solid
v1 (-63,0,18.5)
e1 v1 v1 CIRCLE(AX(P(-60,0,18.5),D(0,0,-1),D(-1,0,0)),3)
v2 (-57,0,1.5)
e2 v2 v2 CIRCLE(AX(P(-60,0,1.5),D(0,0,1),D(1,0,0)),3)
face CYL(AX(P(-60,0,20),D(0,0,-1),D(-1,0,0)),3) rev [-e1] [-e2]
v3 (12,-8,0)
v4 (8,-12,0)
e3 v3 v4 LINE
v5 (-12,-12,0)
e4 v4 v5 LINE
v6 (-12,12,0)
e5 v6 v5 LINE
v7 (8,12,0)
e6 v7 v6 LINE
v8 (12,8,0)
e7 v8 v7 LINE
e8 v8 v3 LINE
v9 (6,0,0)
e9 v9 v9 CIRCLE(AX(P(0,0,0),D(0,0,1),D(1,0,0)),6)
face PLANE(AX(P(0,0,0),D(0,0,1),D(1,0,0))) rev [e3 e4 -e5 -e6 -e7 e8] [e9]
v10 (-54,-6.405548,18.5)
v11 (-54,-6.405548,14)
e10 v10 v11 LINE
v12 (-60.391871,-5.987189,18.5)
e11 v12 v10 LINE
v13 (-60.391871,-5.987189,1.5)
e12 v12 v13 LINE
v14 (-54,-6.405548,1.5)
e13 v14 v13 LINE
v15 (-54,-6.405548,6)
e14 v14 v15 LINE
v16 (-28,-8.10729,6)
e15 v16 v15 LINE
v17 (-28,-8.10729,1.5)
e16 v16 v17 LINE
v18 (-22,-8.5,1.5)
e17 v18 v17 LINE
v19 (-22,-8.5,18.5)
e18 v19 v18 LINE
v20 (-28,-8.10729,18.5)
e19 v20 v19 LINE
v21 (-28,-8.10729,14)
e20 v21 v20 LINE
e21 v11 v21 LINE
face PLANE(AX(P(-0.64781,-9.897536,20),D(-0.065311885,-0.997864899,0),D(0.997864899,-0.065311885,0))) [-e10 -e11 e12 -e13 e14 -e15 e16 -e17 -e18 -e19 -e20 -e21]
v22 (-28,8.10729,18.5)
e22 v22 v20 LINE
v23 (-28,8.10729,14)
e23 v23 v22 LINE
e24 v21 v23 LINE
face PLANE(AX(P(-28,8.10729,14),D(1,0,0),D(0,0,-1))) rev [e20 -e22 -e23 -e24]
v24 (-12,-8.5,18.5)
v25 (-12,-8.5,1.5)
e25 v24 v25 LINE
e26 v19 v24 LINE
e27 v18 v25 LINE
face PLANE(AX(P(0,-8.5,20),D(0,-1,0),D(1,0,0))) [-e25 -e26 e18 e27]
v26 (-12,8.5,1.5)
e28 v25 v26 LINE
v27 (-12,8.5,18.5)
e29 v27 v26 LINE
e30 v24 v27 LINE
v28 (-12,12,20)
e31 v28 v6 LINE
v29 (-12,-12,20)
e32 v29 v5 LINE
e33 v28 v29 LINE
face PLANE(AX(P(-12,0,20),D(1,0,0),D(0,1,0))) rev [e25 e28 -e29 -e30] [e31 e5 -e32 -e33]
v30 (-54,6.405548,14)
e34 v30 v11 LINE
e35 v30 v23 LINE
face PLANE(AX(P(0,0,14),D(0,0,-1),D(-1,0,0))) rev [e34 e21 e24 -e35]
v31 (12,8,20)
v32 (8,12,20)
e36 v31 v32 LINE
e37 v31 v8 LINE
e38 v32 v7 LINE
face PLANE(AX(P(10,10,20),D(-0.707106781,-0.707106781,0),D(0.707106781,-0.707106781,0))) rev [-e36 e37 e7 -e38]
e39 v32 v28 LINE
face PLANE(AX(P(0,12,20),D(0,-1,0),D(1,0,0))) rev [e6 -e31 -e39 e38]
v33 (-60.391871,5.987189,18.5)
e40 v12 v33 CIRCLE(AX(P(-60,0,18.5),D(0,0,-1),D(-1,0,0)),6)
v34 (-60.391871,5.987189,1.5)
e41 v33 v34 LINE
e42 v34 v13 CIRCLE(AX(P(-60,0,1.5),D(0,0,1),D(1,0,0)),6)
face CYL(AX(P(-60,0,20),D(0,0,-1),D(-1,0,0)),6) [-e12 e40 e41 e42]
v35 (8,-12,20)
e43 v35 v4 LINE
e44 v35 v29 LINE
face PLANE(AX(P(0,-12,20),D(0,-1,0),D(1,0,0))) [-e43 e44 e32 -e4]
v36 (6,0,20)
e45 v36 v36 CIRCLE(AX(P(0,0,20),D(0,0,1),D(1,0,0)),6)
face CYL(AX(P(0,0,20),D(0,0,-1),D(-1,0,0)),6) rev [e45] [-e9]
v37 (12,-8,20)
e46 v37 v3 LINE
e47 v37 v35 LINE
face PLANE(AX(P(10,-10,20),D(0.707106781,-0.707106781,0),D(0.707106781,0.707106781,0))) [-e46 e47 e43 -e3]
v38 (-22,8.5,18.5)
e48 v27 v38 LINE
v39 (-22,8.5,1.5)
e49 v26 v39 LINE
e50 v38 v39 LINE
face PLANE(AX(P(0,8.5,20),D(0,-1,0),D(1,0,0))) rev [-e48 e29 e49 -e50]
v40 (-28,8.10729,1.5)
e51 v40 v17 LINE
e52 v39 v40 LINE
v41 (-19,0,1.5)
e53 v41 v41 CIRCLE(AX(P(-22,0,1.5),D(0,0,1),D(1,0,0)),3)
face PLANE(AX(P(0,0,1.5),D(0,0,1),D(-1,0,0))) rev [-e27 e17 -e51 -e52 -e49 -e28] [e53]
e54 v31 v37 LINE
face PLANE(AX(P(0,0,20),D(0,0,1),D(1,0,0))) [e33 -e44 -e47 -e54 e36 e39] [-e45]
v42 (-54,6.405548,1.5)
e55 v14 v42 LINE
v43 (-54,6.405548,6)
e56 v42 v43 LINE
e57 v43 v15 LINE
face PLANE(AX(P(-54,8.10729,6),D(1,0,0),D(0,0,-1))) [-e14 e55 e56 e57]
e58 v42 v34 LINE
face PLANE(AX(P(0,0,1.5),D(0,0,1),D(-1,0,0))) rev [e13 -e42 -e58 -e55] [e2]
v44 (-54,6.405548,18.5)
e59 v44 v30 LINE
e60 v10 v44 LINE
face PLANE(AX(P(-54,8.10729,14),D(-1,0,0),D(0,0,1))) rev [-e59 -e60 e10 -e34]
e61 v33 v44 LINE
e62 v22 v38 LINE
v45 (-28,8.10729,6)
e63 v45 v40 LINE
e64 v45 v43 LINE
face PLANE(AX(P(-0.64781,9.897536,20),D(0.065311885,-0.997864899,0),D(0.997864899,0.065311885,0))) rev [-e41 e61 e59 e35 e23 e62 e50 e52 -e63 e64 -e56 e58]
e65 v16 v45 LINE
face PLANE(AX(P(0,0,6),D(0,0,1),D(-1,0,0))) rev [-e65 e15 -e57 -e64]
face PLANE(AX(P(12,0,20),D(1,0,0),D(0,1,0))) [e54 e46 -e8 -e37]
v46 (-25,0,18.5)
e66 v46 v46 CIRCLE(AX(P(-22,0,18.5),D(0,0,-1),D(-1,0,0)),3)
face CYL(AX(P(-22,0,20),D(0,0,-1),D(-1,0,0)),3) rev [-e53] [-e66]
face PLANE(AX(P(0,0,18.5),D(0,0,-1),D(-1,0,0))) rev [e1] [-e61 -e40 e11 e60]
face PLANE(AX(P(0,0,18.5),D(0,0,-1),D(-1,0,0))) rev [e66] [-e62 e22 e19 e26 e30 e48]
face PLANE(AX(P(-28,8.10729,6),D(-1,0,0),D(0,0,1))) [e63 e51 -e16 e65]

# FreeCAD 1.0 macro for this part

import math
import FreeCAD as App
import Part
import Sketcher

V = App.Vector


def add_polygon(sketch, points):
    """Adds a closed chain of lines whose ends are joined by coincident constraints."""
    first, n = sketch.GeometryCount, len(points)
    for a, b in zip(points, points[1:] + points[:1]):
        sketch.addGeometry(Part.LineSegment(App.Vector(*a, 0), App.Vector(*b, 0)), False)
    for i in range(n):
        sketch.addConstraint(Sketcher.Constraint("Coincident", first + i, 2, first + (i + 1) % n, 1))

doc = App.newDocument("Part")
body = doc.addObject("PartDesign::Body", "Body")

# Sketch on XY plane
sketch1 = body.newObject("Sketcher::SketchObject", "Sketch")
sketch1.AttachmentSupport = (doc.getObject("XY_Plane"), [""])
sketch1.MapMode = "FlatFace"
sketch1.addGeometry([
    Part.LineSegment(V(8, 12, 0), V(-12, 12, 0)),  # 0
    Part.LineSegment(V(-12, 12, 0), V(-12, 8.5, 0)),  # 1
    Part.LineSegment(V(-12, 8.5, 0), V(-22, 8.5, 0)),  # 2
    Part.LineSegment(V(-22, 8.5, 0), V(-60.391871, 5.987189, 0)),  # 3
    Part.ArcOfCircle(Part.Circle(V(-60, 0, 0), V(0, 0, 1), 6), math.radians(93.744761), math.radians(266.255239)),  # 4
    Part.LineSegment(V(-60.391871, -5.987189, 0), V(-22, -8.5, 0)),  # 5
    Part.LineSegment(V(-22, -8.5, 0), V(-12, -8.5, 0)),  # 6
    Part.LineSegment(V(-12, -8.5, 0), V(-12, -12, 0)),  # 7
    Part.LineSegment(V(-12, -12, 0), V(8, -12, 0)),  # 8
    Part.LineSegment(V(8, -12, 0), V(12, -8, 0)),  # 9
    Part.LineSegment(V(12, -8, 0), V(12, 8, 0)),  # 10
    Part.LineSegment(V(12, 8, 0), V(8, 12, 0)),  # 11
    Part.Circle(V(-60, 0, 0), V(0, 0, 1), 3),  # 12
    Part.Circle(V(-22, 0, 0), V(0, 0, 1), 3),  # 13
    Part.Circle(V(0, 0, 0), V(0, 0, 1), 6),  # 14
], False)
sketch1.addConstraint([
    Sketcher.Constraint("Coincident", 0, 2, 1, 1),
    Sketcher.Constraint("Coincident", 1, 2, 2, 1),
    Sketcher.Constraint("Coincident", 2, 2, 3, 1),
    Sketcher.Constraint("Tangent", 3, 2, 4, 1),
    Sketcher.Constraint("Tangent", 4, 2, 5, 1),
    Sketcher.Constraint("Coincident", 5, 2, 6, 1),
    Sketcher.Constraint("Coincident", 6, 2, 7, 1),
    Sketcher.Constraint("Coincident", 7, 2, 8, 1),
    Sketcher.Constraint("Coincident", 8, 2, 9, 1),
    Sketcher.Constraint("Coincident", 9, 2, 10, 1),
    Sketcher.Constraint("Coincident", 10, 2, 11, 1),
    Sketcher.Constraint("Coincident", 11, 2, 0, 1),
    Sketcher.Constraint("Horizontal", 0),
    Sketcher.Constraint("Vertical", 1),
    Sketcher.Constraint("Horizontal", 2),
    Sketcher.Constraint("Horizontal", 6),
    Sketcher.Constraint("Vertical", 7),
    Sketcher.Constraint("Horizontal", 8),
    Sketcher.Constraint("Vertical", 10),
    Sketcher.Constraint("Coincident", 14, 3, -1, 1),
    Sketcher.Constraint("Coincident", 12, 3, 4, 3),
    Sketcher.Constraint("Equal", 12, 13),
    Sketcher.Constraint("Equal", 4, 14),
    Sketcher.Constraint("Symmetric", 3, 2, 4, 2, -1),
    Sketcher.Constraint("Symmetric", 1, 2, 6, 2, -1),
    Sketcher.Constraint("Symmetric", 8, 2, 11, 2, -1),
    Sketcher.Constraint("PointOnObject", 13, 3, -1),
    Sketcher.Constraint("Perpendicular", 9, 11),
    Sketcher.Constraint("Vertical", 13, 3, 2, 2),
    Sketcher.Constraint("Equal", 9, 11),
    Sketcher.Constraint("Diameter", 12, 6.0),
    Sketcher.Constraint("Diameter", 14, 12.0),
    Sketcher.Constraint("DistanceX", 0, 2, 0, 1, 20.0),
    Sketcher.Constraint("DistanceX", 2, 2, 2, 1, 10.0),
    Sketcher.Constraint("DistanceY", 10, 1, 10, 2, 16.0),
    Sketcher.Constraint("DistanceY", 1, 2, 1, 1, 3.5),
    Sketcher.Constraint("DistanceX", 4, 3, -1, 1, 60.0),
    Sketcher.Constraint("DistanceX", 13, 3, -1, 1, 22.0),
    Sketcher.Constraint("DistanceY", -1, 1, 0, 2, 12.0),
])
pad1 = body.newObject("PartDesign::Pad", "Pad")
pad1.Profile = sketch1
pad1.Length = 20

# Sketch on XY plane
sketch2 = body.newObject("Sketcher::SketchObject", "Sketch001")
sketch2.AttachmentSupport = (doc.getObject("XY_Plane"), [""])
sketch2.MapMode = "FlatFace"
sketch2.AttachmentOffset = App.Placement(V(0, 0, 20), App.Rotation())
add_polygon(sketch2, [(-28, 8.5), (-28, -8.5), (-12, -8.5), (-12, 8.5)])  # lines 0-3
add_polygon(sketch2, [(-78.161003, 11.238771), (-78.161003, -12.698834), (-54, -12.698834), (-54, 11.238771)])  # lines 4-7
sketch2.addConstraint([
    Sketcher.Constraint("Vertical", 0),
    Sketcher.Constraint("Horizontal", 1),
    Sketcher.Constraint("Vertical", 2),
    Sketcher.Constraint("Horizontal", 3),
    Sketcher.Constraint("Vertical", 4),
    Sketcher.Constraint("Horizontal", 5),
    Sketcher.Constraint("Vertical", 6),
    Sketcher.Constraint("Horizontal", 7),
    Sketcher.Constraint("DistanceX", 1, 1, 1, 2, 16.0),
    Sketcher.Constraint("DistanceY", 0, 2, 0, 1, 17.0),
    Sketcher.Constraint("DistanceX", 0, 2, -1, 1, 28.0),
    Sketcher.Constraint("DistanceX", 5, 2, -1, 1, 54.0),
    Sketcher.Constraint("DistanceY", 0, 2, -1, 1, 8.5),
    Sketcher.Constraint("DistanceX", 5, 1, 5, 2, 24.161003),
    Sketcher.Constraint("DistanceY", 4, 2, 4, 1, 23.937605),
    Sketcher.Constraint("DistanceY", -1, 1, 6, 2, 11.238771),
])
pocket1 = body.newObject("PartDesign::Pocket", "Pocket")
pocket1.Profile = sketch2
pocket1.Length = 1.5

# Sketch on XY plane
sketch3 = body.newObject("Sketcher::SketchObject", "Sketch002")
sketch3.AttachmentSupport = (doc.getObject("XY_Plane"), [""])
sketch3.MapMode = "FlatFace"
sketch3.AttachmentOffset = App.Placement(V(0, 0, 20), App.Rotation())
add_polygon(sketch3, [(-54, 8.10729), (-54, -8.10729), (-28, -8.10729), (-28, 8.10729)])  # lines 0-3
sketch3.addConstraint([
    Sketcher.Constraint("Vertical", 0),
    Sketcher.Constraint("Horizontal", 1),
    Sketcher.Constraint("Vertical", 2),
    Sketcher.Constraint("Horizontal", 3),
    Sketcher.Constraint("DistanceX", 1, 1, 1, 2, 26.0),
    Sketcher.Constraint("DistanceX", 0, 2, -1, 1, 54.0),
    Sketcher.Constraint("DistanceY", 0, 2, 0, 1, 16.21458),
    Sketcher.Constraint("DistanceY", 0, 2, -1, 1, 8.10729),
])
pocket2 = body.newObject("PartDesign::Pocket", "Pocket001")
pocket2.Profile = sketch3
pocket2.Length = 6
doc.recompute()

datumplane = body.newObject("PartDesign::Plane", "DatumPlane")
datumplane.AttachmentSupport = (doc.getObject("XY_Plane"), [""])
datumplane.MapMode = "FlatFace"
datumplane.AttachmentOffset = App.Placement(V(0, 0, 10), App.Rotation())
mirrored = body.newObject("PartDesign::Mirrored", "Mirrored")
mirrored.Originals = [pocket1, pocket2]
mirrored.MirrorPlane = (datumplane, [""])
body.Tip = mirrored

doc.recompute()
